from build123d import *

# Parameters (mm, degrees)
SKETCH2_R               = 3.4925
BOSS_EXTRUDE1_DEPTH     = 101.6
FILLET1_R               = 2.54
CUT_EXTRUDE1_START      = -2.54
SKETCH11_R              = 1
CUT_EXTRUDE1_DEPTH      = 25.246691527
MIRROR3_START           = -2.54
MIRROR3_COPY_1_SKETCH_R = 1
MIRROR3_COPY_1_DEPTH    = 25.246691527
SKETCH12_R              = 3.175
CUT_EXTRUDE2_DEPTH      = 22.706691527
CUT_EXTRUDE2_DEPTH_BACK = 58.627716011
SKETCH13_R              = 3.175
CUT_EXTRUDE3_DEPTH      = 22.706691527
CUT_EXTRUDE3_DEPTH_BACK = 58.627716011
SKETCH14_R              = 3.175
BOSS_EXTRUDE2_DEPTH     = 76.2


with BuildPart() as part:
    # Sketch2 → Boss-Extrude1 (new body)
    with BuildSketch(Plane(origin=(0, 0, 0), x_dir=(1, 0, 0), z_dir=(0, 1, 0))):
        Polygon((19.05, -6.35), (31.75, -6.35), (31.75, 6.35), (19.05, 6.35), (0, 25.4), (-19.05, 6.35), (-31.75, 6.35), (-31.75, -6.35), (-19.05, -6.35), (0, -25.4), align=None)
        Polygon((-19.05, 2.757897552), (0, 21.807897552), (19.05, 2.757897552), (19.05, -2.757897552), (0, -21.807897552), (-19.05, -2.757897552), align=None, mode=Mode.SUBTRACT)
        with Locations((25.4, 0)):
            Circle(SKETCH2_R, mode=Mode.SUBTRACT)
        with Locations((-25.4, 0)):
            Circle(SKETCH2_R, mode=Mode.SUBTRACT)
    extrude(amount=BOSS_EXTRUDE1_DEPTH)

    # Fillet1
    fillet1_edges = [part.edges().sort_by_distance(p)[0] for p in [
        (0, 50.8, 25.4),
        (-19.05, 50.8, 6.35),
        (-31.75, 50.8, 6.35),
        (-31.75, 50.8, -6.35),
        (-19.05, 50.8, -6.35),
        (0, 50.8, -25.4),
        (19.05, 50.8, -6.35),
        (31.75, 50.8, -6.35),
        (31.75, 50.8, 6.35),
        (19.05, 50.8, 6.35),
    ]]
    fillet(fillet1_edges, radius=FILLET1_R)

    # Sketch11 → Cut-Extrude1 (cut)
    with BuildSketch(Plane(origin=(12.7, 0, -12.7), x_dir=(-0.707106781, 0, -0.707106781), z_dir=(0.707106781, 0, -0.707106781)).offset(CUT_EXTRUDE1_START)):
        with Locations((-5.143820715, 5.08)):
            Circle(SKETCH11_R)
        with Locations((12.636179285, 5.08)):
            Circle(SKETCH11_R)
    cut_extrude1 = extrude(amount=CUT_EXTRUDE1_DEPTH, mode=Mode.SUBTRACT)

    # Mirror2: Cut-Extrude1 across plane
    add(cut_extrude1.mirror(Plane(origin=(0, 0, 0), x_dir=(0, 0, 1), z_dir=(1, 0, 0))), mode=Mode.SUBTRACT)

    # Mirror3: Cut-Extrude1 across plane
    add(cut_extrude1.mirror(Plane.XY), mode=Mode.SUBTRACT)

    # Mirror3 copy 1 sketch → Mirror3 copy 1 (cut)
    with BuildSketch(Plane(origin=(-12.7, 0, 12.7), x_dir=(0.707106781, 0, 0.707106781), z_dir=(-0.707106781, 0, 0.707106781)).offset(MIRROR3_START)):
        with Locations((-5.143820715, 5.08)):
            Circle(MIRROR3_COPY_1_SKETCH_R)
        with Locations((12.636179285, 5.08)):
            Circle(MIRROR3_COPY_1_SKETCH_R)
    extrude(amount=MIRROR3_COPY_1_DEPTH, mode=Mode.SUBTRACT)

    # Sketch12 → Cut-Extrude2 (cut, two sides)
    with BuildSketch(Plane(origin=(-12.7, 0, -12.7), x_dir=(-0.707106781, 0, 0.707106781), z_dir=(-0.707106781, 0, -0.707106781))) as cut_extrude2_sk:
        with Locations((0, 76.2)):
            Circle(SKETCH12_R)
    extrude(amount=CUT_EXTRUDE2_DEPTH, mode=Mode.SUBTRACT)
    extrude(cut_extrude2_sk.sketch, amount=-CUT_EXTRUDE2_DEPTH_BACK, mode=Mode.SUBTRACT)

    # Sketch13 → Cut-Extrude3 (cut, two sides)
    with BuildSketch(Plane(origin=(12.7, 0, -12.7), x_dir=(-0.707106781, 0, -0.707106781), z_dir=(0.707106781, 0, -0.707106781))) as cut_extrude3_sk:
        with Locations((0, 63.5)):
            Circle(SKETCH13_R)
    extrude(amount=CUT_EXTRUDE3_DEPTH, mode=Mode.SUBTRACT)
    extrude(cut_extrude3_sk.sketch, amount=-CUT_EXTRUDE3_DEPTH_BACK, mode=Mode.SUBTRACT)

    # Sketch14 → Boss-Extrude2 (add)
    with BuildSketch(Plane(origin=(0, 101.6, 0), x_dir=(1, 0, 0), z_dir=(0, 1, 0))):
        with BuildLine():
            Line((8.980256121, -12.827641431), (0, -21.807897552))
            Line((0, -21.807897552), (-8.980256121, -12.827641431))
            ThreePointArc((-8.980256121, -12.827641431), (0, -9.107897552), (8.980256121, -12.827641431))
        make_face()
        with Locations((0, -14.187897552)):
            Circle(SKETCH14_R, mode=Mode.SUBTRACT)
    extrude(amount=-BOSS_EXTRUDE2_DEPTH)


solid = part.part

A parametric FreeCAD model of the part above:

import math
import FreeCAD as App
import Part
import Sketcher
Q = App.Units.Quantity


def edges_at(feature, points):
    """Names of the edges that pass closest to the given points."""
    edges = feature.Shape.Edges
    near = lambda p: min(range(len(edges)), key=lambda i: edges[i].distToShape(Part.Vertex(*p))[0])
    return sorted({f"Edge{near(p) + 1}" for p in points})


def add_polygon(sketch, points):
    """Adds a closed chain of lines whose ends are joined by coincident constraints."""
    first, n = sketch.GeometryCount, len(points)
    for a, b in zip(points, points[1:] + points[:1]):
        sketch.addGeometry(Part.LineSegment(App.Vector(*a, 0), App.Vector(*b, 0)), False)
    for i in range(n):
        sketch.addConstraint(Sketcher.Constraint("Coincident", first + i, 2, first + (i + 1) % n, 1))

doc = App.newDocument("Part")
body = doc.addObject("PartDesign::Body", "Body")

# Sketch on XZ plane
sketch1 = body.newObject("Sketcher::SketchObject", "Sketch")
sketch1.AttachmentSupport = (doc.getObject("XZ_Plane"), [""])
sketch1.MapMode = "FlatFace"
add_polygon(sketch1, [(19.1, 6.3), (31.8, 6.3), (31.8, -6.3), (19.1, -6.3), (0, -25.4), (-19.1, -6.3), (-31.8, -6.3), (-31.8, 6.3), (-19.1, 6.3), (0, 25.4)])  # lines 0-9
sketch1.addGeometry(Part.Circle(App.Vector(-25.4, 0, 0), App.Vector(0, 0, 1), 3.5), False)  # 10
add_polygon(sketch1, [(-19.1, 2.8), (-19.1, -2.8), (0, -21.8), (19.1, -2.8), (19.1, 2.8), (0, 21.8)])  # lines 11-16
sketch1.addGeometry(Part.Circle(App.Vector(25.4, 0, 0), App.Vector(0, 0, 1), 3.5), False)  # 17
sketch1.addConstraint([
    Sketcher.Constraint("Horizontal", 0),
    Sketcher.Constraint("Vertical", 1),
    Sketcher.Constraint("Horizontal", 2),
    Sketcher.Constraint("Horizontal", 5),
    Sketcher.Constraint("Vertical", 6),
    Sketcher.Constraint("Horizontal", 7),
    Sketcher.Constraint("Vertical", 11),
    Sketcher.Constraint("Vertical", 14),
    Sketcher.Constraint("Equal", 10, 17),
    Sketcher.Constraint("Symmetric", 10, 3, 17, 3, -1, 1),
    Sketcher.Constraint("Symmetric", 0, 2, 5, 2, -1, 1),
    Sketcher.Constraint("Symmetric", 2, 2, 7, 2, -1, 1),
    Sketcher.Constraint("Symmetric", 3, 2, 8, 2, -1, 1),
    Sketcher.Constraint("Symmetric", 11, 2, 14, 2, -1, 1),
    Sketcher.Constraint("Symmetric", 12, 2, 15, 2, -1, 1),
    Sketcher.Constraint("Symmetric", 2, 2, 4, 2, -2),
    Sketcher.Constraint("PointOnObject", 10, 3, -1),
    Sketcher.Constraint("PointOnObject", 3, 2, -2),
    Sketcher.Constraint("PointOnObject", 12, 2, -2),
    Sketcher.Constraint("Perpendicular", 3, 4),
    Sketcher.Constraint("Perpendicular", 8, 9),
    Sketcher.Constraint("Parallel", 9, 12),
    Sketcher.Constraint("Perpendicular", 12, 13),
    Sketcher.Constraint("Perpendicular", 15, 16),
    Sketcher.Constraint("Vertical", 7, 2, 11, 2),
    Sketcher.Constraint("Equal", 7, 1),
    Sketcher.Constraint("Diameter", 10, Q("0.275 in")),
    Sketcher.Constraint("DistanceX", 0, 1, 0, 2, Q("0.5 in")),
    Sketcher.Constraint("DistanceX", 10, 3, -1, 1, Q("1 in")),
    Sketcher.Constraint("DistanceY", 3, 2, -1, 1, Q("1 in")),
    Sketcher.Constraint("DistanceY", 11, 2, 11, 1, 5.515795),
])
pad1 = body.newObject("PartDesign::Pad", "Pad")
pad1.Profile = sketch1
pad1.Length = Q("4 in")
pad1.Reversed = True
doc.recompute()

fillet = body.newObject("PartDesign::Fillet", "Fillet")
fillet.Base = (pad1, edges_at(pad1, [
    (0, 50.8, 25.4),
    (-19.05, 50.8, 6.35),
    (-31.75, 50.8, 6.35),
    (-31.75, 50.8, -6.35),
    (-19.05, 50.8, -6.35),
    (0, 50.8, -25.4),
    (19.05, 50.8, -6.35),
    (31.75, 50.8, -6.35),
    (31.75, 50.8, 6.35),
    (19.05, 50.8, 6.35),
]))
fillet.Radius = Q("0.1 in")

# Sketch on an angled plane
sketch2 = body.newObject("Sketcher::SketchObject", "Sketch001")
sketch2.Placement = App.Placement(App.Vector(10.903949, 0, -10.903949), App.Rotation(App.Vector(-0.707106781, 0, -0.707106781), App.Vector(0, 0.999999999, 0), App.Vector(0.707106781, 0, -0.707106781), "ZXY"))
sketch2.addGeometry([
    Part.Circle(App.Vector(-5.1, 5.1, 0), App.Vector(0, 0, 1), 1),
    Part.Circle(App.Vector(12.6, 5.1, 0), App.Vector(0, 0, 1), 1),
], False)
sketch2.addConstraint([
    Sketcher.Constraint("Equal", 0, 1),
    Sketcher.Constraint("Horizontal", 0, 3, 1, 3),
    Sketcher.Constraint("DistanceY", -1, 1, 0, 3, Q("0.2 in")),
    Sketcher.Constraint("DistanceX", 0, 3, 1, 3, Q("0.7 in")),
    Sketcher.Constraint("Diameter", 0, 2.0),
    Sketcher.Constraint("DistanceX", 0, 3, -1, 1, 5.143821),
])
pocket1 = body.newObject("PartDesign::Pocket", "Pocket")
pocket1.Profile = sketch2
pocket1.Length = 25.246692
pocket1.Reversed = True
doc.recompute()

mirrored = body.newObject("PartDesign::Mirrored", "Mirrored")
mirrored.Originals = [pocket1]
mirrored.MirrorPlane = (doc.getObject("YZ_Plane"), [""])
body.Tip = mirrored
doc.recompute()

mirrored2 = body.newObject("PartDesign::Mirrored", "Mirrored001")
mirrored2.Originals = [pocket1]
mirrored2.MirrorPlane = (doc.getObject("XY_Plane"), [""])
body.Tip = mirrored2

# Sketch on an angled plane
sketch3 = body.newObject("Sketcher::SketchObject", "Sketch002")
sketch3.Placement = App.Placement(App.Vector(-10.903949, 0, 10.903949), App.Rotation(App.Vector(0.707106781, 0, 0.707106781), App.Vector(0, 0.999999999, 0), App.Vector(-0.707106781, 0, 0.707106781), "ZXY"))
sketch3.addGeometry([
    Part.Circle(App.Vector(-5.1, 5.1, 0), App.Vector(0, 0, 1), 1),
    Part.Circle(App.Vector(12.6, 5.1, 0), App.Vector(0, 0, 1), 1),
], False)
sketch3.addConstraint([
    Sketcher.Constraint("Equal", 0, 1),
    Sketcher.Constraint("Horizontal", 0, 3, 1, 3),
    Sketcher.Constraint("DistanceY", -1, 1, 0, 3, Q("0.2 in")),
    Sketcher.Constraint("DistanceX", 0, 3, 1, 3, Q("0.7 in")),
    Sketcher.Constraint("Diameter", 0, 2.0),
    Sketcher.Constraint("DistanceX", 0, 3, -1, 1, 5.143821),
])
pocket2 = body.newObject("PartDesign::Pocket", "Pocket001")
pocket2.Profile = sketch3
pocket2.Length = 25.246692
pocket2.Reversed = True

# Sketch on an angled plane
sketch4 = body.newObject("Sketcher::SketchObject", "Sketch003")
sketch4.Placement = App.Placement(App.Vector(-12.7, 0, -12.7), App.Rotation(App.Vector(-0.707106781, 0, 0.707106781), App.Vector(0, 0.999999999, 0), App.Vector(-0.707106781, 0, -0.707106781), "ZXY"))
sketch4.addGeometry(Part.Circle(App.Vector(0, 76.2, 0), App.Vector(0, 0, 1), 3.2), False)
sketch4.addConstraint([
    Sketcher.Constraint("PointOnObject", 0, 3, -2),
    Sketcher.Constraint("Diameter", 0, Q("0.25 in")),
    Sketcher.Constraint("DistanceY", -1, 1, 0, 3, Q("3 in")),
])
pocket3 = body.newObject("PartDesign::Pocket", "Pocket002")
pocket3.Profile = sketch4
pocket3.Type = "ThroughAll"
pocket3.Midplane = True

# Sketch on an angled plane
sketch5 = body.newObject("Sketcher::SketchObject", "Sketch004")
sketch5.Placement = App.Placement(App.Vector(12.7, 0, -12.7), App.Rotation(App.Vector(-0.707106781, 0, -0.707106781), App.Vector(0, 0.999999999, 0), App.Vector(0.707106781, 0, -0.707106781), "ZXY"))
sketch5.addGeometry(Part.Circle(App.Vector(0, 63.5, 0), App.Vector(0, 0, 1), 3.2), False)
sketch5.addConstraint([
    Sketcher.Constraint("PointOnObject", 0, 3, -2),
    Sketcher.Constraint("Diameter", 0, Q("0.25 in")),
    Sketcher.Constraint("DistanceY", -1, 1, 0, 3, Q("2.5 in")),
])
pocket4 = body.newObject("PartDesign::Pocket", "Pocket003")
pocket4.Profile = sketch5
pocket4.Type = "ThroughAll"
pocket4.Midplane = True

# Sketch on XZ plane
sketch6 = body.newObject("Sketcher::SketchObject", "Sketch005")
sketch6.AttachmentSupport = (doc.getObject("XZ_Plane"), [""])
sketch6.MapMode = "FlatFace"
sketch6.AttachmentOffset = App.Placement(App.Vector(0, 0, -4 * 25.4), App.Rotation())
sketch6.addGeometry([
    Part.LineSegment(App.Vector(0, 21.8, 0), App.Vector(9, 12.8, 0)),
    Part.ArcOfCircle(Part.Circle(App.Vector(0, 21.8, 0), App.Vector(0, 0, 1), 12.7), math.radians(-135), math.radians(-45)),
    Part.LineSegment(App.Vector(-9, 12.8, 0), App.Vector(0, 21.8, 0)),
    Part.Circle(App.Vector(0, 14.2, 0), App.Vector(0, 0, 1), 3.2),
], False)
sketch6.addConstraint([
    Sketcher.Constraint("Coincident", 0, 2, 1, 2),
    Sketcher.Constraint("Coincident", 1, 1, 2, 1),
    Sketcher.Constraint("Coincident", 2, 2, 0, 1),
    Sketcher.Constraint("Coincident", 2, 2, 1, 3),
    Sketcher.Constraint("Symmetric", 0, 2, 1, 1, -2),
    Sketcher.Constraint("PointOnObject", 3, 3, -2),
    Sketcher.Constraint("Perpendicular", 0, 2),
    Sketcher.Constraint("Radius", 1, Q("0.5 in")),
    Sketcher.Constraint("Diameter", 3, Q("0.25 in")),
    Sketcher.Constraint("DistanceY", 3, 3, 1, 3, Q("0.3 in")),
    Sketcher.Constraint("DistanceY", -1, 1, 0, 2, 12.827641),
])
pad2 = body.newObject("PartDesign::Pad", "Pad001")
pad2.Profile = sketch6
pad2.Length = Q("3 in")

doc.recompute()
